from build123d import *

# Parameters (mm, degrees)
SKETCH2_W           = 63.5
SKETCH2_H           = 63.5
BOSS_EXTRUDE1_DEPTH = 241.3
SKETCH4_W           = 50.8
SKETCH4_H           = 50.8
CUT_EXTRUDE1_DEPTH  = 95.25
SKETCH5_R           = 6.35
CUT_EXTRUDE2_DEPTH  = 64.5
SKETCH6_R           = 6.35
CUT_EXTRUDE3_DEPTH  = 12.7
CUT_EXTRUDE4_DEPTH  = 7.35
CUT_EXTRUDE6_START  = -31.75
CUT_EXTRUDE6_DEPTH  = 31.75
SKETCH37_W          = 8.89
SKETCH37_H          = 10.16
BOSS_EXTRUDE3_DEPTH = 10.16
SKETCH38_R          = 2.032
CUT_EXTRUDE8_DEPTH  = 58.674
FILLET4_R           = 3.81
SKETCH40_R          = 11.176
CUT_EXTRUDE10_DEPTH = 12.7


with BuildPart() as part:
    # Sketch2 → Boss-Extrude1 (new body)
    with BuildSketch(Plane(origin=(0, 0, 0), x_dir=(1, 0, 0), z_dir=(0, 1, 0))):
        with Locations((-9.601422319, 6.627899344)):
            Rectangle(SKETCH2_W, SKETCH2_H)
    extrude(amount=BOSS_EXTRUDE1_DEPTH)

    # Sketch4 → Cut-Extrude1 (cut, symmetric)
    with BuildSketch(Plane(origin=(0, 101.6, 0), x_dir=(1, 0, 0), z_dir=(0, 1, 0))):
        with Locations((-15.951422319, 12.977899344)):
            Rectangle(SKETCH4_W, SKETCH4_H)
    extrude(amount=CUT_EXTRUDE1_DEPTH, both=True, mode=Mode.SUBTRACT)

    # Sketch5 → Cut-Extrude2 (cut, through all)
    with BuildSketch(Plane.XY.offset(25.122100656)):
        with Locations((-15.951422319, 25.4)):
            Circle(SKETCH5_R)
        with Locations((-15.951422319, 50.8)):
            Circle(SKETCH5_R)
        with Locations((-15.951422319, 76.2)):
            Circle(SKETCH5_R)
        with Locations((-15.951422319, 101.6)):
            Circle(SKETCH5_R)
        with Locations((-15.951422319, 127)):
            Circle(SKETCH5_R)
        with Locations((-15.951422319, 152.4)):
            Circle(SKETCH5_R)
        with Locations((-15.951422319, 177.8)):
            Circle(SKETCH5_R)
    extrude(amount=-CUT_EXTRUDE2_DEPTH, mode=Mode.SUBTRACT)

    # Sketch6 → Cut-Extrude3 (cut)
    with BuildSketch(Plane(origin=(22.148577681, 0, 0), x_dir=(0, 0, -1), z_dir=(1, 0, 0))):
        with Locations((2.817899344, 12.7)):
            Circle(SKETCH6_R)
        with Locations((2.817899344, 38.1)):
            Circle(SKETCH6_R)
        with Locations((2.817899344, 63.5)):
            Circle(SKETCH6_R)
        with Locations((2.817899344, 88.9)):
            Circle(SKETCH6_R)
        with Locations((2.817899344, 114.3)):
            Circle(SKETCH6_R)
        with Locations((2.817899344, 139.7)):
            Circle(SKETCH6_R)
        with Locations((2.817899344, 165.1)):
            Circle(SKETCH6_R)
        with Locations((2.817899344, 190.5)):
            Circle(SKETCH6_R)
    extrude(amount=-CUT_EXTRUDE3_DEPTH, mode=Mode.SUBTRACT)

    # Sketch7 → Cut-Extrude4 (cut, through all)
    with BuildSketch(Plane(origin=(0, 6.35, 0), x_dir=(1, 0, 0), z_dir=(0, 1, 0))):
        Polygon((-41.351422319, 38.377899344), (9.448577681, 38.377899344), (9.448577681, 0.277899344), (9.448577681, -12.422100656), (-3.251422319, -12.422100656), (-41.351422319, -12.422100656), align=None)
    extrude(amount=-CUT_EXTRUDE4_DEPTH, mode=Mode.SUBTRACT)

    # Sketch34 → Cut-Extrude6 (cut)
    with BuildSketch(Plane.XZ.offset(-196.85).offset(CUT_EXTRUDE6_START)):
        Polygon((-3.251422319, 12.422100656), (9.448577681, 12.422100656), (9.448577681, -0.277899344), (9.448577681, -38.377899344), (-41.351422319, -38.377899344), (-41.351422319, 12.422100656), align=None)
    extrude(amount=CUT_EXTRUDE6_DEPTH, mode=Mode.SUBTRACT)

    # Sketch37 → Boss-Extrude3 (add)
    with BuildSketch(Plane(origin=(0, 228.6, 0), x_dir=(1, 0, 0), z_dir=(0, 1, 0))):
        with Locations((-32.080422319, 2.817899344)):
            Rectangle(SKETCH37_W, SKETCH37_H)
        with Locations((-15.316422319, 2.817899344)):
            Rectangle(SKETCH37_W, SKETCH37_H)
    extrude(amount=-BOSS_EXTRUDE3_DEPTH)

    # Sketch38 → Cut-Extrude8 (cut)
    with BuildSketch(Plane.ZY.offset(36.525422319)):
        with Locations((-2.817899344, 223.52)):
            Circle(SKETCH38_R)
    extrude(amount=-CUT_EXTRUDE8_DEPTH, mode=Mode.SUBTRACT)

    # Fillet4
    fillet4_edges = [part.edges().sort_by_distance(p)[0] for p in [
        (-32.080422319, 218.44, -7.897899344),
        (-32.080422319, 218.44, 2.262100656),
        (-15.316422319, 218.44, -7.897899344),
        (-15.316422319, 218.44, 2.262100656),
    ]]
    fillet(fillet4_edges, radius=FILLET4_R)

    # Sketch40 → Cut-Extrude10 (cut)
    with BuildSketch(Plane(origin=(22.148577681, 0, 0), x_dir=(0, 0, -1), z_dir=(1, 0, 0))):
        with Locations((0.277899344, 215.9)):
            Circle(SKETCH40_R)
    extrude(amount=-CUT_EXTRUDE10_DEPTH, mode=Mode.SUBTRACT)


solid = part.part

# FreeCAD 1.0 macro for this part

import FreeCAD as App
import Part
import Sketcher
from FreeCAD import Vector
Q = App.Units.Quantity


def edges_at(feature, points):
    """Names of the edges that pass closest to the given points."""
    edges = feature.Shape.Edges
    near = lambda p: min(range(len(edges)), key=lambda i: edges[i].distToShape(Part.Vertex(*p))[0])
    return sorted({f"Edge{near(p) + 1}" for p in points})


def add_polygon(sketch, points):
    """Adds a closed chain of lines whose ends are joined by coincident constraints."""
    first, n = sketch.GeometryCount, len(points)
    for a, b in zip(points, points[1:] + points[:1]):
        sketch.addGeometry(Part.LineSegment(App.Vector(*a, 0), App.Vector(*b, 0)), False)
    for i in range(n):
        sketch.addConstraint(Sketcher.Constraint("Coincident", first + i, 2, first + (i + 1) % n, 1))

doc = App.newDocument("Part")
params = doc.addObject("Spreadsheet::Sheet", "Params")
for row, (alias, value) in enumerate([
    ("sketch1_width", "2.5 in"),
    ("pad1_length", "9.5 in"),
    ("sketch2_width", "2 in"),
    ("pocket1_length", "7.5 in"),
    ("sketch3_diameter", "0.5 in"),
    ("sketch4_diameter", "0.5 in"),
    ("pocket3_length", "0.5 in"),
    ("sketch5_width", "2 in"),
    ("sketch6_width", "2 in"),
    ("pocket5_length", "1.25 in"),
    ("sketch7_height", "0.4 in"),
    ("sketch7_width", "0.35 in"),
    ("pad2_length", "0.4 in"),
    ("sketch8_diameter", "0.16 in"),
    ("pocket6_length", "2.31 in"),
    ("fillet_radius", "0.15 in"),
    ("sketch9_diameter", "0.88 in"),
    ("pocket7_length", "0.5 in"),
], start=1):
    params.set(f"A{row}", alias)
    params.set(f"B{row}", "=" + value)
    params.setAlias(f"B{row}", alias)

body = doc.addObject("PartDesign::Body", "Body")

# Sketch on XZ plane
sketch1 = doc.addObject("Sketcher::SketchObject", "Sketch")
body.addObject(sketch1)
sketch1.AttachmentSupport = (doc.XZ_Plane, [""])
sketch1.MapMode = "FlatFace"
add_polygon(sketch1, [(-41, -38), (-41, 25), (22, 25), (22, -38)])  # lines 0-3
sketch1.addConstraint([
    Sketcher.Constraint("Vertical", 0),
    Sketcher.Constraint("Horizontal", 1),
    Sketcher.Constraint("Vertical", 2),
    Sketcher.Constraint("Horizontal", 3),
    Sketcher.Constraint("Equal", 3, 0),
    Sketcher.Constraint("DistanceX", 1, 1, 1, 2, Q("2.5 in")),
    Sketcher.Constraint("DistanceY", -1, 1, 0, 2, Q("25.122101 mm")),
    Sketcher.Constraint("DistanceX", 0, 2, -1, 1, Q("41.351422 mm")),
])
sketch1.setExpression("Constraints[9]", "Params.sketch1_width")
pad1 = doc.addObject("PartDesign::Pad", "Pad")
body.addObject(pad1)
pad1.Profile = sketch1
pad1.setExpression("Length", "Params.pad1_length")
pad1.Reversed = True

# Sketch on XZ plane
sketch2 = doc.addObject("Sketcher::SketchObject", "Sketch001")
body.addObject(sketch2)
sketch2.AttachmentSupport = (doc.XZ_Plane, [""])
sketch2.MapMode = "FlatFace"
sketch2.AttachmentOffset = App.Placement(Vector(0, 0, -4 * 25.4), App.Rotation())
add_polygon(sketch2, [(-41, -38), (-41, 12), (9, 12), (9, -38)])  # lines 0-3
sketch2.addConstraint([
    Sketcher.Constraint("Vertical", 0),
    Sketcher.Constraint("Horizontal", 1),
    Sketcher.Constraint("Vertical", 2),
    Sketcher.Constraint("Horizontal", 3),
    Sketcher.Constraint("Equal", 3, 0),
    Sketcher.Constraint("DistanceX", 1, 1, 1, 2, Q("2 in")),
    Sketcher.Constraint("DistanceY", -1, 1, 0, 2, Q("12.422101 mm")),
    Sketcher.Constraint("DistanceX", 0, 2, -1, 1, Q("41.351422 mm")),
])
sketch2.setExpression("Constraints[9]", "Params.sketch2_width")
pocket1 = doc.addObject("PartDesign::Pocket", "Pocket")
body.addObject(pocket1)
pocket1.Profile = sketch2
pocket1.setExpression("Length", "Params.pocket1_length")
pocket1.Midplane = True

# Sketch on XY plane
sketch3 = doc.addObject("Sketcher::SketchObject", "Sketch002")
body.addObject(sketch3)
sketch3.AttachmentSupport = (doc.XY_Plane, [""])
sketch3.MapMode = "FlatFace"
sketch3.AttachmentOffset = App.Placement(Vector(0, 0, 25.122101), App.Rotation())
sketch3.addGeometry([
    Part.Circle(Vector(-16, 25, 0), Vector(0, 0, 1), 6),  # 0
    Part.Circle(Vector(-16, 51, 0), Vector(0, 0, 1), 6),  # 1
    Part.Circle(Vector(-16, 76, 0), Vector(0, 0, 1), 6),  # 2
    Part.Circle(Vector(-16, 102, 0), Vector(0, 0, 1), 6),  # 3
    Part.Circle(Vector(-16, 127, 0), Vector(0, 0, 1), 6),  # 4
    Part.Circle(Vector(-16, 152, 0), Vector(0, 0, 1), 6),  # 5
    Part.Circle(Vector(-16, 178, 0), Vector(0, 0, 1), 6),  # 6
], False)
sketch3.addConstraint([
    Sketcher.Constraint("Equal", 0, 1),
    Sketcher.Constraint("Equal", 1, 2),
    Sketcher.Constraint("Equal", 2, 3),
    Sketcher.Constraint("Equal", 3, 4),
    Sketcher.Constraint("Equal", 4, 5),
    Sketcher.Constraint("Equal", 5, 6),
    Sketcher.Constraint("Vertical", 0, 3, 1, 3),
    Sketcher.Constraint("Vertical", 1, 3, 2, 3),
    Sketcher.Constraint("Vertical", 2, 3, 3, 3),
    Sketcher.Constraint("Vertical", 3, 3, 4, 3),
    Sketcher.Constraint("Vertical", 4, 3, 5, 3),
    Sketcher.Constraint("Vertical", 5, 3, 6, 3),
    Sketcher.Constraint("Diameter", 0, Q("0.5 in")),
    Sketcher.Constraint("DistanceY", -1, 1, 0, 3, Q("1 in")),
    Sketcher.Constraint("DistanceY", -1, 1, 1, 3, Q("2 in")),
    Sketcher.Constraint("DistanceY", -1, 1, 2, 3, Q("3 in")),
    Sketcher.Constraint("DistanceY", -1, 1, 3, 3, Q("4 in")),
    Sketcher.Constraint("DistanceY", -1, 1, 4, 3, Q("5 in")),
    Sketcher.Constraint("DistanceY", -1, 1, 5, 3, Q("6 in")),
    Sketcher.Constraint("DistanceY", -1, 1, 6, 3, Q("7 in")),
    Sketcher.Constraint("DistanceX", 0, 3, -1, 1, Q("15.951422 mm")),
])
sketch3.setExpression("Constraints[12]", "Params.sketch3_diameter")
pocket2 = doc.addObject("PartDesign::Pocket", "Pocket001")
body.addObject(pocket2)
pocket2.Profile = sketch3
pocket2.Type = "ThroughAll"

# Sketch on YZ plane
sketch4 = doc.addObject("Sketcher::SketchObject", "Sketch003")
body.addObject(sketch4)
sketch4.AttachmentSupport = (doc.YZ_Plane, [""])
sketch4.MapMode = "FlatFace"
sketch4.AttachmentOffset = App.Placement(Vector(0, 0, 22.148578), App.Rotation())
sketch4.addGeometry([
    Part.Circle(Vector(13, -3, 0), Vector(0, 0, 1), 6),  # 0
    Part.Circle(Vector(38, -3, 0), Vector(0, 0, 1), 6),  # 1
    Part.Circle(Vector(64, -3, 0), Vector(0, 0, 1), 6),  # 2
    Part.Circle(Vector(89, -3, 0), Vector(0, 0, 1), 6),  # 3
    Part.Circle(Vector(114, -3, 0), Vector(0, 0, 1), 6),  # 4
    Part.Circle(Vector(140, -3, 0), Vector(0, 0, 1), 6),  # 5
    Part.Circle(Vector(165, -3, 0), Vector(0, 0, 1), 6),  # 6
    Part.Circle(Vector(190, -3, 0), Vector(0, 0, 1), 6),  # 7
], False)
sketch4.addConstraint([
    Sketcher.Constraint("Equal", 0, 1),
    Sketcher.Constraint("Equal", 1, 2),
    Sketcher.Constraint("Equal", 2, 3),
    Sketcher.Constraint("Equal", 3, 4),
    Sketcher.Constraint("Equal", 4, 5),
    Sketcher.Constraint("Equal", 5, 6),
    Sketcher.Constraint("Equal", 6, 7),
    Sketcher.Constraint("Horizontal", 0, 3, 1, 3),
    Sketcher.Constraint("Horizontal", 1, 3, 2, 3),
    Sketcher.Constraint("Horizontal", 2, 3, 3, 3),
    Sketcher.Constraint("Horizontal", 3, 3, 4, 3),
    Sketcher.Constraint("Horizontal", 4, 3, 5, 3),
    Sketcher.Constraint("Horizontal", 5, 3, 6, 3),
    Sketcher.Constraint("Horizontal", 6, 3, 7, 3),
    Sketcher.Constraint("Diameter", 0, Q("0.5 in")),
    Sketcher.Constraint("DistanceX", 0, 3, 1, 3, Q("1 in")),
    Sketcher.Constraint("DistanceX", 1, 3, 2, 3, Q("1 in")),
    Sketcher.Constraint("DistanceX", 2, 3, 3, 3, Q("1 in")),
    Sketcher.Constraint("DistanceX", 3, 3, 4, 3, Q("1 in")),
    Sketcher.Constraint("DistanceX", 4, 3, 5, 3, Q("1 in")),
    Sketcher.Constraint("DistanceX", 5, 3, 6, 3, Q("1 in")),
    Sketcher.Constraint("DistanceX", 6, 3, 7, 3, Q("1 in")),
    Sketcher.Constraint("DistanceX", -1, 1, 0, 3, Q("0.5 in")),
    Sketcher.Constraint("DistanceY", 0, 3, -1, 1, Q("2.817899 mm")),
])
sketch4.setExpression("Constraints[14]", "Params.sketch4_diameter")
pocket3 = doc.addObject("PartDesign::Pocket", "Pocket002")
body.addObject(pocket3)
pocket3.Profile = sketch4
pocket3.setExpression("Length", "Params.pocket3_length")

# Sketch on XZ plane
sketch5 = doc.addObject("Sketcher::SketchObject", "Sketch004")
body.addObject(sketch5)
sketch5.AttachmentSupport = (doc.XZ_Plane, [""])
sketch5.MapMode = "FlatFace"
sketch5.AttachmentOffset = App.Placement(Vector(0, 0, -0.25 * 25.4), App.Rotation())
add_polygon(sketch5, [(9, -38), (-41, -38), (-41, 12), (9, 12)])  # lines 0-3
sketch5.addConstraint([
    Sketcher.Constraint("Horizontal", 0),
    Sketcher.Constraint("Vertical", 1),
    Sketcher.Constraint("Horizontal", 2),
    Sketcher.Constraint("Vertical", 3),
    Sketcher.Constraint("Equal", 2, 1),
    Sketcher.Constraint("DistanceX", 0, 2, 0, 1, Q("2 in")),
    Sketcher.Constraint("DistanceY", 0, 2, -1, 1, Q("38.377899 mm")),
    Sketcher.Constraint("DistanceX", 0, 2, -1, 1, Q("41.351422 mm")),
])
sketch5.setExpression("Constraints[9]", "Params.sketch5_width")
pocket4 = doc.addObject("PartDesign::Pocket", "Pocket003")
body.addObject(pocket4)
pocket4.Profile = sketch5
pocket4.Type = "ThroughAll"
pocket4.Reversed = True

# Sketch on XZ plane
sketch6 = doc.addObject("Sketcher::SketchObject", "Sketch005")
body.addObject(sketch6)
sketch6.AttachmentSupport = (doc.XZ_Plane, [""])
sketch6.MapMode = "FlatFace"
sketch6.AttachmentOffset = App.Placement(Vector(0, 0, -9 * 25.4), App.Rotation())
add_polygon(sketch6, [(9, 12), (-41, 12), (-41, -38), (9, -38)])  # lines 0-3
sketch6.addConstraint([
    Sketcher.Constraint("Horizontal", 0),
    Sketcher.Constraint("Vertical", 1),
    Sketcher.Constraint("Horizontal", 2),
    Sketcher.Constraint("Vertical", 3),
    Sketcher.Constraint("Equal", 2, 1),
    Sketcher.Constraint("DistanceX", 0, 2, 0, 1, Q("2 in")),
    Sketcher.Constraint("DistanceY", -1, 1, 0, 2, Q("12.422101 mm")),
    Sketcher.Constraint("DistanceX", 0, 2, -1, 1, Q("41.351422 mm")),
])
sketch6.setExpression("Constraints[9]", "Params.sketch6_width")
pocket5 = doc.addObject("PartDesign::Pocket", "Pocket004")
body.addObject(pocket5)
pocket5.Profile = sketch6
pocket5.setExpression("Length", "Params.pocket5_length")
pocket5.Reversed = True

# Sketch on XZ plane
sketch7 = doc.addObject("Sketcher::SketchObject", "Sketch006")
body.addObject(sketch7)
sketch7.AttachmentSupport = (doc.XZ_Plane, [""])
sketch7.MapMode = "FlatFace"
sketch7.AttachmentOffset = App.Placement(Vector(0, 0, -9 * 25.4), App.Rotation())
add_polygon(sketch7, [(-37, -8), (-37, 2), (-28, 2), (-28, -8)])  # lines 0-3
add_polygon(sketch7, [(-20, -8), (-20, 2), (-11, 2), (-11, -8)])  # lines 4-7
sketch7.addConstraint([
    Sketcher.Constraint("Vertical", 0),
    Sketcher.Constraint("Horizontal", 1),
    Sketcher.Constraint("Vertical", 2),
    Sketcher.Constraint("Horizontal", 3),
    Sketcher.Constraint("Vertical", 4),
    Sketcher.Constraint("Horizontal", 5),
    Sketcher.Constraint("Vertical", 6),
    Sketcher.Constraint("Horizontal", 7),
    Sketcher.Constraint("Horizontal", 1, 2, 4, 2),
    Sketcher.Constraint("Horizontal", 3, 2, 6, 2),
    Sketcher.Constraint("Equal", 3, 5),
    Sketcher.Constraint("DistanceY", 0, 1, 0, 2, Q("0.4 in")),
    Sketcher.Constraint("DistanceX", 1, 1, 1, 2, Q("0.35 in")),
    Sketcher.Constraint("DistanceX", 1, 2, 4, 2, Q("0.31 in")),
    Sketcher.Constraint("DistanceY", -1, 1, 0, 2, Q("2.262101 mm")),
    Sketcher.Constraint("DistanceX", 0, 2, -1, 1, Q("36.525422 mm")),
])
sketch7.setExpression("Constraints[19]", "Params.sketch7_height")
sketch7.setExpression("Constraints[20]", "Params.sketch7_width")
pad2 = doc.addObject("PartDesign::Pad", "Pad001")
body.addObject(pad2)
pad2.Profile = sketch7
pad2.setExpression("Length", "Params.pad2_length")

# Sketch on YZ plane
sketch8 = doc.addObject("Sketcher::SketchObject", "Sketch007")
body.addObject(sketch8)
sketch8.AttachmentSupport = (doc.YZ_Plane, [""])
sketch8.MapMode = "FlatFace"
sketch8.AttachmentOffset = App.Placement(Vector(0, 0, -36.525422), App.Rotation())
sketch8.addGeometry(Part.Circle(Vector(223.5, -2.8, 0), Vector(0, 0, 1), 2), False)
sketch8.addConstraint([
    Sketcher.Constraint("Diameter", 0, Q("0.16 in")),
    Sketcher.Constraint("DistanceX", -1, 1, 0, 3, Q("8.8 in")),
    Sketcher.Constraint("DistanceY", 0, 3, -1, 1, Q("2.817899 mm")),
])
sketch8.setExpression("Constraints[0]", "Params.sketch8_diameter")
pocket6 = doc.addObject("PartDesign::Pocket", "Pocket005")
body.addObject(pocket6)
pocket6.Profile = sketch8
pocket6.setExpression("Length", "Params.pocket6_length")
pocket6.Reversed = True
doc.recompute()

fillet = doc.addObject("PartDesign::Fillet", "Fillet")
body.addObject(fillet)
fillet.Base = (pocket6, edges_at(pocket6, [
    (-32.08, 218.44, -7.898),
    (-32.08, 218.44, 2.262),
    (-15.316, 218.44, -7.898),
    (-15.316, 218.44, 2.262),
]))
fillet.setExpression("Radius", "Params.fillet_radius")

# Sketch on YZ plane
sketch9 = doc.addObject("Sketcher::SketchObject", "Sketch008")
body.addObject(sketch9)
sketch9.AttachmentSupport = (doc.YZ_Plane, [""])
sketch9.MapMode = "FlatFace"
sketch9.AttachmentOffset = App.Placement(Vector(0, 0, 22.148578), App.Rotation())
sketch9.addGeometry(Part.Circle(Vector(216, 0, 0), Vector(0, 0, 1), 11), False)
sketch9.addConstraint([
    Sketcher.Constraint("Diameter", 0, Q("0.88 in")),
    Sketcher.Constraint("DistanceX", -1, 1, 0, 3, Q("8.5 in")),
    Sketcher.Constraint("DistanceY", 0, 3, -1, 1, Q("0.277899 mm")),
])
sketch9.setExpression("Constraints[0]", "Params.sketch9_diameter")
pocket7 = doc.addObject("PartDesign::Pocket", "Pocket006")
body.addObject(pocket7)
pocket7.Profile = sketch9
pocket7.setExpression("Length", "Params.pocket7_length")

doc.recompute()
